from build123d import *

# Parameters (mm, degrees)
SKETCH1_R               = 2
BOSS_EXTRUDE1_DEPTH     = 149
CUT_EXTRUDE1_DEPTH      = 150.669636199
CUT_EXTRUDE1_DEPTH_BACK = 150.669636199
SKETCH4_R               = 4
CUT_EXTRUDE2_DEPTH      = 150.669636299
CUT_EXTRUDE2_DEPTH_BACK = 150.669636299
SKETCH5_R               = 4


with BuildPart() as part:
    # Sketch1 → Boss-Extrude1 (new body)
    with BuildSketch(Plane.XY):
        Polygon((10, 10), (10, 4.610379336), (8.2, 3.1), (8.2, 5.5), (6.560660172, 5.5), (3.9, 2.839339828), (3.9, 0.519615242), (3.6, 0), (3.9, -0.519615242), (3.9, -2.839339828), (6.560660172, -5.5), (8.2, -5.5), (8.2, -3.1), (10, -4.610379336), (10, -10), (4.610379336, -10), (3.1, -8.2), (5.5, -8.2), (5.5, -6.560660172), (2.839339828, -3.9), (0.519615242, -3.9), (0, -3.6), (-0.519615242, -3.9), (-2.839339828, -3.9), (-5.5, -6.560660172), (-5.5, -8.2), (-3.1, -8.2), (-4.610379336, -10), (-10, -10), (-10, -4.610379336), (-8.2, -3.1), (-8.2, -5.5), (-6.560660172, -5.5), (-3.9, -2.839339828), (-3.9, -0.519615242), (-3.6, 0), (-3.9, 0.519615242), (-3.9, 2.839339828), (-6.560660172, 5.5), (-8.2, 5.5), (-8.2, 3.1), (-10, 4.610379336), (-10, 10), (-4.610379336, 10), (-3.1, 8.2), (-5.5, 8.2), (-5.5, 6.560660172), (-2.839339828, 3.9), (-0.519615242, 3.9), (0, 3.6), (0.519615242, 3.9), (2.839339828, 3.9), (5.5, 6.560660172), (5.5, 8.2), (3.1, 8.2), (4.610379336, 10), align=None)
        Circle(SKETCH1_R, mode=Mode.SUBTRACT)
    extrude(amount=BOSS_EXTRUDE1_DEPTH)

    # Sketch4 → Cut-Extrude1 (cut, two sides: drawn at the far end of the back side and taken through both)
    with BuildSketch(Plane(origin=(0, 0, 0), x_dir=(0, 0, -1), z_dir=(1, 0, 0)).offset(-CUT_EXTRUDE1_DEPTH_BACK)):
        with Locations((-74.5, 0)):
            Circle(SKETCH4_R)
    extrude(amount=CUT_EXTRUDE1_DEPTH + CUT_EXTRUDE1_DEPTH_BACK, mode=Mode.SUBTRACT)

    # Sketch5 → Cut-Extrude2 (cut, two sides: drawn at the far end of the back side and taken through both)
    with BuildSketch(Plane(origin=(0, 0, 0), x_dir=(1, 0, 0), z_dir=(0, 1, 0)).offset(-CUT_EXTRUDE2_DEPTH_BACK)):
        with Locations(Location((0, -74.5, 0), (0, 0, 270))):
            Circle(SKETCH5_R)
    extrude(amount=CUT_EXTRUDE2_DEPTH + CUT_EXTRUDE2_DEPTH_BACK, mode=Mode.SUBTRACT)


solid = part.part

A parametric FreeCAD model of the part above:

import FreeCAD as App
import Part
import Sketcher
Q = App.Units.Quantity


def add_polygon(sketch, points):
    """Adds a closed chain of lines whose ends are joined by coincident constraints."""
    first, n = sketch.GeometryCount, len(points)
    for a, b in zip(points, points[1:] + points[:1]):
        sketch.addGeometry(Part.LineSegment(App.Vector(*a, 0), App.Vector(*b, 0)), False)
    for i in range(n):
        sketch.addConstraint(Sketcher.Constraint("Coincident", first + i, 2, first + (i + 1) % n, 1))

doc = App.newDocument("Part")
body = doc.addObject("PartDesign::Body", "Body")

# Sketch on XY plane
sketch1 = body.newObject("Sketcher::SketchObject", "Sketch")
sketch1.AttachmentSupport = (doc.getObject("XY_Plane"), [""])
sketch1.MapMode = "FlatFace"
add_polygon(sketch1, [(10, 4.6), (10, 10), (4.6, 10), (3.1, 8.2), (5.5, 8.2), (5.5, 6.6), (2.8, 3.9), (0.5, 3.9), (0, 3.6), (-0.5, 3.9), (-2.8, 3.9), (-5.5, 6.6), (-5.5, 8.2), (-3.1, 8.2), (-4.6, 10), (-10, 10), (-10, 4.6), (-8.2, 3.1), (-8.2, 5.5), (-6.6, 5.5), (-3.9, 2.8), (-3.9, 0.5), (-3.6, 0), (-3.9, -0.5), (-3.9, -2.8), (-6.6, -5.5), (-8.2, -5.5), (-8.2, -3.1), (-10, -4.6), (-10, -10), (-4.6, -10), (-3.1, -8.2), (-5.5, -8.2), (-5.5, -6.6), (-2.8, -3.9), (-0.5, -3.9), (0, -3.6), (0.5, -3.9), (2.8, -3.9), (5.5, -6.6), (5.5, -8.2), (3.1, -8.2), (4.6, -10), (10, -10), (10, -4.6), (8.2, -3.1), (8.2, -5.5), (6.6, -5.5), (3.9, -2.8), (3.9, -0.5), (3.6, 0), (3.9, 0.5), (3.9, 2.8), (6.6, 5.5), (8.2, 5.5), (8.2, 3.1)])  # lines 0-55
sketch1.addGeometry(Part.Circle(App.Vector(0, 0, 0), App.Vector(0, 0, 1), 2), False)  # 56
sketch1.addConstraint(Sketcher.Constraint("Vertical", 0))
sketch1.addConstraint(Sketcher.Constraint("Horizontal", 1))
sketch1.addConstraint(Sketcher.Constraint("Horizontal", 3))
sketch1.addConstraint(Sketcher.Constraint("Vertical", 4))
sketch1.addConstraint(Sketcher.Constraint("Horizontal", 6))
sketch1.addConstraint(Sketcher.Constraint("Horizontal", 9))
sketch1.addConstraint(Sketcher.Constraint("Vertical", 11))
sketch1.addConstraint(Sketcher.Constraint("Horizontal", 12))
sketch1.addConstraint(Sketcher.Constraint("Horizontal", 14))
sketch1.addConstraint(Sketcher.Constraint("Vertical", 15))
sketch1.addConstraint(Sketcher.Constraint("Vertical", 17))
sketch1.addConstraint(Sketcher.Constraint("Horizontal", 18))
sketch1.addConstraint(Sketcher.Constraint("Vertical", 20))
sketch1.addConstraint(Sketcher.Constraint("Vertical", 23))
sketch1.addConstraint(Sketcher.Constraint("Horizontal", 25))
sketch1.addConstraint(Sketcher.Constraint("Vertical", 26))
sketch1.addConstraint(Sketcher.Constraint("Vertical", 28))
sketch1.addConstraint(Sketcher.Constraint("Horizontal", 29))
sketch1.addConstraint(Sketcher.Constraint("Horizontal", 31))
sketch1.addConstraint(Sketcher.Constraint("Vertical", 32))
sketch1.addConstraint(Sketcher.Constraint("Horizontal", 34))
sketch1.addConstraint(Sketcher.Constraint("Horizontal", 37))
sketch1.addConstraint(Sketcher.Constraint("Vertical", 39))
sketch1.addConstraint(Sketcher.Constraint("Horizontal", 40))
sketch1.addConstraint(Sketcher.Constraint("Horizontal", 42))
sketch1.addConstraint(Sketcher.Constraint("Vertical", 43))
sketch1.addConstraint(Sketcher.Constraint("Vertical", 45))
sketch1.addConstraint(Sketcher.Constraint("Horizontal", 46))
sketch1.addConstraint(Sketcher.Constraint("Vertical", 48))
sketch1.addConstraint(Sketcher.Constraint("Vertical", 51))
sketch1.addConstraint(Sketcher.Constraint("Horizontal", 53))
sketch1.addConstraint(Sketcher.Constraint("Vertical", 54))
sketch1.addConstraint(Sketcher.Constraint("Coincident", 56, 3, -1, 1))
sketch1.addConstraint(Sketcher.Constraint("Symmetric", 0, 2, 28, 2, -1, 1))
sketch1.addConstraint(Sketcher.Constraint("Symmetric", 2, 2, 30, 2, -1, 1))
sketch1.addConstraint(Sketcher.Constraint("Symmetric", 4, 2, 32, 2, -1, 1))
sketch1.addConstraint(Sketcher.Constraint("Symmetric", 5, 2, 33, 2, -1, 1))
sketch1.addConstraint(Sketcher.Constraint("Symmetric", 7, 2, 35, 2, -1, 1))
sketch1.addConstraint(Sketcher.Constraint("Symmetric", 8, 2, 36, 2, -1, 1))
sketch1.addConstraint(Sketcher.Constraint("Symmetric", 10, 2, 38, 2, -1, 1))
sketch1.addConstraint(Sketcher.Constraint("Symmetric", 12, 2, 40, 2, -1, 1))
sketch1.addConstraint(Sketcher.Constraint("Symmetric", 13, 2, 41, 2, -1, 1))
sketch1.addConstraint(Sketcher.Constraint("Symmetric", 15, 2, 43, 2, -1, 1))
sketch1.addConstraint(Sketcher.Constraint("Symmetric", 16, 2, 44, 2, -1, 1))
sketch1.addConstraint(Sketcher.Constraint("Symmetric", 18, 2, 46, 2, -1, 1))
sketch1.addConstraint(Sketcher.Constraint("Symmetric", 19, 2, 47, 2, -1, 1))
sketch1.addConstraint(Sketcher.Constraint("Symmetric", 21, 2, 49, 2, -1, 1))
sketch1.addConstraint(Sketcher.Constraint("Symmetric", 22, 2, 50, 2, -1, 1))
sketch1.addConstraint(Sketcher.Constraint("Symmetric", 24, 2, 52, 2, -1, 1))
sketch1.addConstraint(Sketcher.Constraint("Symmetric", 26, 2, 54, 2, -1, 1))
sketch1.addConstraint(Sketcher.Constraint("Symmetric", 6, 2, 8, 2, -2))
sketch1.addConstraint(Sketcher.Constraint("Symmetric", 4, 2, 10, 2, -2))
sketch1.addConstraint(Sketcher.Constraint("Symmetric", 2, 2, 12, 2, -2))
sketch1.addConstraint(Sketcher.Constraint("Symmetric", 1, 2, 13, 2, -2))
sketch1.addConstraint(Sketcher.Constraint("Symmetric", 27, 2, 43, 2, -2))
sketch1.addConstraint(Sketcher.Constraint("Symmetric", 26, 2, 44, 2, -2))
sketch1.addConstraint(Sketcher.Constraint("Symmetric", 24, 2, 46, 2, -2))
sketch1.addConstraint(Sketcher.Constraint("Symmetric", 23, 2, 47, 2, -2))
sketch1.addConstraint(Sketcher.Constraint("PointOnObject", 7, 2, -2))
sketch1.addConstraint(Sketcher.Constraint("PointOnObject", 21, 2, -1))
sketch1.addConstraint(Sketcher.Constraint("Perpendicular", 5, 10))
sketch1.addConstraint(Sketcher.Constraint("Perpendicular", 2, 16))
sketch1.addConstraint(Sketcher.Constraint("Parallel", 10, 19))
sketch1.addConstraint(Sketcher.Constraint("Perpendicular", 7, 21))
sketch1.addConstraint(Sketcher.Constraint("Perpendicular", 8, 22))
sketch1.addConstraint(Sketcher.Constraint("Perpendicular", 19, 24))
sketch1.addConstraint(Sketcher.Constraint("Perpendicular", 16, 30))
sketch1.addConstraint(Sketcher.Constraint("Perpendicular", 21, 35))
sketch1.addConstraint(Sketcher.Constraint("Perpendicular", 33, 38))
sketch1.addConstraint(Sketcher.Constraint("Perpendicular", 35, 49))
sketch1.addConstraint(Sketcher.Constraint("Perpendicular", 47, 52))
sketch1.addConstraint(Sketcher.Constraint("Perpendicular", 41, 55))
sketch1.addConstraint(Sketcher.Constraint("Equal", 42, 0))
sketch1.addConstraint(Sketcher.Constraint("Equal", 53, 4))
sketch1.addConstraint(Sketcher.Constraint("Equal", 40, 17))
sketch1.addConstraint(Sketcher.Constraint("Equal", 37, 20))
sketch1.addConstraint(Sketcher.Constraint("Equal", 13, 16))
sketch1.addConstraint(Sketcher.Constraint("Equal", 10, 19))
sketch1.addConstraint(Sketcher.Constraint("Equal", 8, 21))
sketch1.addConstraint(Sketcher.Constraint("Diameter", 56, 4.0))
sketch1.addConstraint(Sketcher.Constraint("Angle", 2, Q("-130 deg")))
sketch1.addConstraint(Sketcher.Constraint("Angle", 7, Q("-150 deg")))
sketch1.addConstraint(Sketcher.Constraint("DistanceX", 3, 1, 3, 2, 2.4))
sketch1.addConstraint(Sketcher.Constraint("DistanceX", -1, 1, 0, 2, 10.0))
sketch1.addConstraint(Sketcher.Constraint("Distance", 7, 0.6))
sketch1.addConstraint(Sketcher.Constraint("DistanceX", -1, 1, 2, 2, 3.1))
sketch1.addConstraint(Sketcher.Constraint("DistanceY", -1, 1, 2, 2, 8.2))
sketch1.addConstraint(Sketcher.Constraint("DistanceY", -1, 1, 5, 2, 3.9))
sketch1.addConstraint(Sketcher.Constraint("DistanceX", 18, 1, 18, 2, 1.63934))
pad1 = body.newObject("PartDesign::Pad", "Pad")
pad1.Profile = sketch1
pad1.Length = 149

# Sketch on YZ plane
sketch2 = body.newObject("Sketcher::SketchObject", "Sketch001")
sketch2.AttachmentSupport = (doc.getObject("YZ_Plane"), [""])
sketch2.MapMode = "FlatFace"
sketch2.addGeometry(Part.Circle(App.Vector(0, 74.5, 0), App.Vector(0, 0, 1), 4), False)
sketch2.addConstraint(Sketcher.Constraint("PointOnObject", 0, 3, -2))
sketch2.addConstraint(Sketcher.Constraint("Diameter", 0, 8.0))
sketch2.addConstraint(Sketcher.Constraint("DistanceY", -1, 1, 0, 3, 74.5))
pocket1 = body.newObject("PartDesign::Pocket", "Pocket")
pocket1.Profile = sketch2
pocket1.Type = "ThroughAll"
pocket1.Midplane = True

# Sketch on XZ plane
sketch3 = body.newObject("Sketcher::SketchObject", "Sketch002")
sketch3.AttachmentSupport = (doc.getObject("XZ_Plane"), [""])
sketch3.MapMode = "FlatFace"
sketch3.addGeometry(Part.Circle(App.Vector(0, 74.5, 0), App.Vector(0, 0, 1), 4), False)
sketch3.addConstraint(Sketcher.Constraint("PointOnObject", 0, 3, -2))
sketch3.addConstraint(Sketcher.Constraint("Diameter", 0, 8.0))
sketch3.addConstraint(Sketcher.Constraint("DistanceY", -1, 1, 0, 3, 74.5))
pocket2 = body.newObject("PartDesign::Pocket", "Pocket001")
pocket2.Profile = sketch3
pocket2.Type = "ThroughAll"
pocket2.Midplane = True

doc.recompute()
